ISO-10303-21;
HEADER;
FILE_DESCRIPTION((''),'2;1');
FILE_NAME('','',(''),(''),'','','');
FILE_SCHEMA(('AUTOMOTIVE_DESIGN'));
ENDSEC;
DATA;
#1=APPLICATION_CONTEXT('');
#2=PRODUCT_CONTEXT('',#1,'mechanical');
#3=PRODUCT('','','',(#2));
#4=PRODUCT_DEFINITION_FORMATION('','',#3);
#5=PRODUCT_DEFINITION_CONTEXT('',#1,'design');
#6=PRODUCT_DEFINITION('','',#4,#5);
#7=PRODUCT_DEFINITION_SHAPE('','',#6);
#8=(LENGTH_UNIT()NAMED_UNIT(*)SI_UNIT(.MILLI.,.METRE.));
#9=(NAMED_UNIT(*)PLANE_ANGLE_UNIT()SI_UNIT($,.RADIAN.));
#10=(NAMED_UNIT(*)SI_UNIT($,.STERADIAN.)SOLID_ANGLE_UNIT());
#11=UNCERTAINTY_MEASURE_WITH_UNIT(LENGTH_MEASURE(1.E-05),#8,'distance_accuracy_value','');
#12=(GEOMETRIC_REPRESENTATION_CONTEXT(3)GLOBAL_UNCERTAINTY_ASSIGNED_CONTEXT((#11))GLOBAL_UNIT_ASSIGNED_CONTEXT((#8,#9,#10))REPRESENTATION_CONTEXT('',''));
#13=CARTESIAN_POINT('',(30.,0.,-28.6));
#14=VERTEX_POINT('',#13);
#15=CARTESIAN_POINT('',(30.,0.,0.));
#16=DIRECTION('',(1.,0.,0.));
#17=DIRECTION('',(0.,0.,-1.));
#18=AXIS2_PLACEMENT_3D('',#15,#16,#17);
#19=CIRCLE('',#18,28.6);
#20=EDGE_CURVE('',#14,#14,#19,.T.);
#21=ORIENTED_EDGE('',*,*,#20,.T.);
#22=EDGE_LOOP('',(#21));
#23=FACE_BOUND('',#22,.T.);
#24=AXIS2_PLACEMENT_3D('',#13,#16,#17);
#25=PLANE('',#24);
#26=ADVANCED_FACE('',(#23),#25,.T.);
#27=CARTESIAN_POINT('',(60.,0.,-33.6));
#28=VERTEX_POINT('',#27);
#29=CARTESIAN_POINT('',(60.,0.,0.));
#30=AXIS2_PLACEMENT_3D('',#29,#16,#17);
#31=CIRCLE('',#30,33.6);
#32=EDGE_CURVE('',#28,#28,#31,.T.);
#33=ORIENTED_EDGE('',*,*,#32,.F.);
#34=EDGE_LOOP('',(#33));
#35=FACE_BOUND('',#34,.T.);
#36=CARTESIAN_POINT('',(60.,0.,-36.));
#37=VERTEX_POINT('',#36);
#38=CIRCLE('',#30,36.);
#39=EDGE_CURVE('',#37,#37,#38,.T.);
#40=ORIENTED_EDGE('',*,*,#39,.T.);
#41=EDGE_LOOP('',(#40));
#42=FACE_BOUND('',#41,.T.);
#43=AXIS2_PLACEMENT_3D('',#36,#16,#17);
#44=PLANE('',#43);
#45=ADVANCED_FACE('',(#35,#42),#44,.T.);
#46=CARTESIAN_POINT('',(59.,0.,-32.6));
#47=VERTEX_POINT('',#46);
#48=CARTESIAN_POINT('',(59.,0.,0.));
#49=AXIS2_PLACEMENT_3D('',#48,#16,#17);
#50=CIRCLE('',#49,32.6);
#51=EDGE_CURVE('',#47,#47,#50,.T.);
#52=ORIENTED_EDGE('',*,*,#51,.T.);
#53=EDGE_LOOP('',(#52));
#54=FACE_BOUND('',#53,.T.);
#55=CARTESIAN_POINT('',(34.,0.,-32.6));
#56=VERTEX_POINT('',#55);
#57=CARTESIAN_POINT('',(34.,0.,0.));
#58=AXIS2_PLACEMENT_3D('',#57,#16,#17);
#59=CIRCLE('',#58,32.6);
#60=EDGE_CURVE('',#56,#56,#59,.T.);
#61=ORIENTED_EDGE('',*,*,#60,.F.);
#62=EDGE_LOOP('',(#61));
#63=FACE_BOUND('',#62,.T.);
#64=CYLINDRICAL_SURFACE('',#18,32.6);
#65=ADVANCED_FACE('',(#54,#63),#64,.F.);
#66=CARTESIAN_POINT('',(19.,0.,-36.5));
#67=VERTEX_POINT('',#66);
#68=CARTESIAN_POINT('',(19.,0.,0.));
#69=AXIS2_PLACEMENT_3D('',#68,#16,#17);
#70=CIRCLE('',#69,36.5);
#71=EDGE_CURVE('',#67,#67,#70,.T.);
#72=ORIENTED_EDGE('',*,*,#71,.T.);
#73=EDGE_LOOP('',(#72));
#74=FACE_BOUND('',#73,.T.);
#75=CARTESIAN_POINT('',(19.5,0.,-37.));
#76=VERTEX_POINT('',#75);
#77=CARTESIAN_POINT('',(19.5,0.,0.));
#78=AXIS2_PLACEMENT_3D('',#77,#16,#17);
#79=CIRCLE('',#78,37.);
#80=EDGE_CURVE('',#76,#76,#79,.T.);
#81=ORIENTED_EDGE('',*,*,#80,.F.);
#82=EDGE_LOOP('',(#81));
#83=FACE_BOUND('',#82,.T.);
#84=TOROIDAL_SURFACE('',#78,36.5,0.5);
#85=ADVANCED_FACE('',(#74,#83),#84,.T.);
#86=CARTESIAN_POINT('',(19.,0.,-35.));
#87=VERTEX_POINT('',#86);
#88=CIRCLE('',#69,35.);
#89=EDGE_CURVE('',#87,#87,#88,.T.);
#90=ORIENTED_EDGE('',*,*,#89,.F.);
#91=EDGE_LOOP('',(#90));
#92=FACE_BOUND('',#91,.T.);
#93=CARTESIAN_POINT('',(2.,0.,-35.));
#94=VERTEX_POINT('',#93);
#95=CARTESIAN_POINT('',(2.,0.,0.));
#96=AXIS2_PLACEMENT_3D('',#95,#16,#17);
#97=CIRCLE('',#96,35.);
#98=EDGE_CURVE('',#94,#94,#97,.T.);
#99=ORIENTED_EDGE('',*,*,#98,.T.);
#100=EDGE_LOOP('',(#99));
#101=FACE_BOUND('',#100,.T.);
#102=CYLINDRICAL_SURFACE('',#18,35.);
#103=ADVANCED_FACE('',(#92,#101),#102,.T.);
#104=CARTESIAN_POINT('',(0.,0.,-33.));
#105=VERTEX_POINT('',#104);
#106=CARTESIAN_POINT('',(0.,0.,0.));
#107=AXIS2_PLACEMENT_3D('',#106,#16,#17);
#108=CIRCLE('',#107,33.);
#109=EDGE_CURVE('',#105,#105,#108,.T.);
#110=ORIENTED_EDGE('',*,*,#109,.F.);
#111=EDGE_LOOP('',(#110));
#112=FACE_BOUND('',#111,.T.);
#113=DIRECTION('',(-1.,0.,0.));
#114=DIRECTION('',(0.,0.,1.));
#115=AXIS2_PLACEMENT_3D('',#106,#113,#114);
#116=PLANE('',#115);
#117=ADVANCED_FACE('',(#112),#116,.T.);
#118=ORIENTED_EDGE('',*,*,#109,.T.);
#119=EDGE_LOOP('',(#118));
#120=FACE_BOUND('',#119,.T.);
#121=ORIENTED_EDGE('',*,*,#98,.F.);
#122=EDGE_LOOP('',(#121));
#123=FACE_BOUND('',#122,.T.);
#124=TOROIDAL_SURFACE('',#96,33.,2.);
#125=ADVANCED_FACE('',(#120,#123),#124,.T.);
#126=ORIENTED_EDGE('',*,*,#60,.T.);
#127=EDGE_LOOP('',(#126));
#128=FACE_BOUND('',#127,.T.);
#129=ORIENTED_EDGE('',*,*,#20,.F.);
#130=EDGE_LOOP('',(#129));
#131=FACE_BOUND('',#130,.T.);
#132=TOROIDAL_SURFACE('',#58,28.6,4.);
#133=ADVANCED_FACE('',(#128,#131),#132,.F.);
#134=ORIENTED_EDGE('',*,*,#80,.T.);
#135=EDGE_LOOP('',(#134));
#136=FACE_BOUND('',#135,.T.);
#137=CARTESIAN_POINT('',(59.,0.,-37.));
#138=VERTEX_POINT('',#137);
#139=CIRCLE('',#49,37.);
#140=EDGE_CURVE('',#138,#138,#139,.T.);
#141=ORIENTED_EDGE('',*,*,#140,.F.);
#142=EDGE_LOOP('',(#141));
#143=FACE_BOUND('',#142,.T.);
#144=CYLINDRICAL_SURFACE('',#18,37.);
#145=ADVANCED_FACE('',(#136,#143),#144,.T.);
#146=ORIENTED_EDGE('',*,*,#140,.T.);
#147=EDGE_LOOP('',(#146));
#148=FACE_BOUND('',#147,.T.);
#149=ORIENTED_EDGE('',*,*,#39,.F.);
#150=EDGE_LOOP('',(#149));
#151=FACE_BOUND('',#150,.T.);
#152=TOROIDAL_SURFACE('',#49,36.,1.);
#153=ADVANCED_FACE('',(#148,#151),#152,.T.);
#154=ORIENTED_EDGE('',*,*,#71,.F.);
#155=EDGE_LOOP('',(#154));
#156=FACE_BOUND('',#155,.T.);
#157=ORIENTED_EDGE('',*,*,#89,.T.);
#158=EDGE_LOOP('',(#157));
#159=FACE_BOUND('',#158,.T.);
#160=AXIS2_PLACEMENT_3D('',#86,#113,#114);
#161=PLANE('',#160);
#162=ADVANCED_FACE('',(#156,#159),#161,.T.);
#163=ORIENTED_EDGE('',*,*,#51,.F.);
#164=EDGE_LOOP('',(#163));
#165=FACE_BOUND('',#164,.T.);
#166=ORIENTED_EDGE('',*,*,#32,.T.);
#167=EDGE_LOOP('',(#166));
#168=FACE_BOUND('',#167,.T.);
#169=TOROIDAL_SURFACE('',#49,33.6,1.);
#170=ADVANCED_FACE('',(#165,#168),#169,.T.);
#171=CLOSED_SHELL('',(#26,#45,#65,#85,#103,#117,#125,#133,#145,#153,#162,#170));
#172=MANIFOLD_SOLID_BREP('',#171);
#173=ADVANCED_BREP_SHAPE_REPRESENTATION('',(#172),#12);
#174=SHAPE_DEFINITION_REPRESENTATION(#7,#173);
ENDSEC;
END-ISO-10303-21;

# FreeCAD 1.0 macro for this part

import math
import FreeCAD as App
import Part
import Sketcher

V = App.Vector
Q = App.Units.Quantity

doc = App.newDocument("Part")
params = doc.addObject("Spreadsheet::Sheet", "Params")
for row, (alias, value) in enumerate([
    ("sketch1_radius", "4 mm"),
    ("sketch1_radius2", "1 mm"),
    ("sketch1_radius3", "2 mm"),
    ("sketch1_radius4", "0.5 mm"),
    ("sketch1_width", "30 mm"),
    ("revolution_angle", "360 deg"),
], start=1):
    params.set(f"A{row}", alias)
    params.set(f"B{row}", "=" + value)
    params.setAlias(f"B{row}", alias)

body = doc.addObject("PartDesign::Body", "Body")

# Sketch on XZ plane
sketch1 = body.newObject("Sketcher::SketchObject", "Sketch")
sketch1.AttachmentSupport = (doc.getObject("XZ_Plane"), [""])
sketch1.MapMode = "FlatFace"
sketch1.addGeometry([
    Part.LineSegment(V(0, -33, 0), V(0, 0, 0)),  # 0
    Part.LineSegment(V(0, 0, 0), V(30, 0, 0)),  # 1
    Part.LineSegment(V(30, 0, 0), V(30, -28.6, 0)),  # 2
    Part.ArcOfCircle(Part.Circle(V(34, -28.6, 0), V(0, 0, 1), 4), math.radians(180), math.radians(270)),  # 3
    Part.LineSegment(V(34, -32.6, 0), V(59, -32.6, 0)),  # 4
    Part.ArcOfCircle(Part.Circle(V(59, -33.6, 0), V(0, 0, 1), 1), math.radians(0), math.radians(90)),  # 5
    Part.LineSegment(V(60, -33.6, 0), V(60, -36, 0)),  # 6
    Part.ArcOfCircle(Part.Circle(V(59, -36, 0), V(0, 0, 1), 1), math.radians(-90), math.radians(0)),  # 7
    Part.LineSegment(V(59, -37, 0), V(19.5, -37, 0)),  # 8
    Part.ArcOfCircle(Part.Circle(V(19.5, -36.5, 0), V(0, 0, 1), 0.5), math.radians(180), math.radians(270)),  # 9
    Part.LineSegment(V(19, -36.5, 0), V(19, -35, 0)),  # 10
    Part.LineSegment(V(19, -35, 0), V(2, -35, 0)),  # 11
    Part.ArcOfCircle(Part.Circle(V(2, -33, 0), V(0, 0, 1), 2), math.radians(-180), math.radians(-90)),  # 12
], False)
sketch1.addConstraint([
    Sketcher.Constraint("Coincident", 0, 2, 1, 1),
    Sketcher.Constraint("Coincident", 1, 2, 2, 1),
    Sketcher.Constraint("Tangent", 2, 2, 3, 1),
    Sketcher.Constraint("Tangent", 3, 2, 4, 1),
    Sketcher.Constraint("Tangent", 4, 2, 5, 2),
    Sketcher.Constraint("Tangent", 5, 1, 6, 1),
    Sketcher.Constraint("Tangent", 6, 2, 7, 2),
    Sketcher.Constraint("Tangent", 7, 1, 8, 1),
    Sketcher.Constraint("Tangent", 8, 2, 9, 2),
    Sketcher.Constraint("Tangent", 9, 1, 10, 1),
    Sketcher.Constraint("Coincident", 10, 2, 11, 1),
    Sketcher.Constraint("Tangent", 11, 2, 12, 2),
    Sketcher.Constraint("Tangent", 12, 1, 0, 1),
    Sketcher.Constraint("Vertical", 0),
    Sketcher.Constraint("Horizontal", 1),
    Sketcher.Constraint("Vertical", 2),
    Sketcher.Constraint("Horizontal", 4),
    Sketcher.Constraint("Vertical", 6),
    Sketcher.Constraint("Horizontal", 8),
    Sketcher.Constraint("Vertical", 10),
    Sketcher.Constraint("Horizontal", 11),
    Sketcher.Constraint("Coincident", 0, 2, -1, 1),
    Sketcher.Constraint("Equal", 5, 7),
    Sketcher.Constraint("Radius", 3, Q("4 mm")),
    Sketcher.Constraint("Radius", 5, Q("1 mm")),
    Sketcher.Constraint("Radius", 12, Q("2 mm")),
    Sketcher.Constraint("Radius", 9, Q("0.5 mm")),
    Sketcher.Constraint("DistanceX", 1, 1, 1, 2, Q("30 mm")),
    Sketcher.Constraint("DistanceX", 4, 1, 4, 2, Q("25 mm")),
    Sketcher.Constraint("DistanceX", 11, 2, 11, 1, Q("17 mm")),
    Sketcher.Constraint("DistanceY", 0, 1, 0, 2, Q("33 mm")),
    Sketcher.Constraint("DistanceY", 2, 2, 2, 1, Q("28.6 mm")),
    Sketcher.Constraint("DistanceY", 6, 2, 6, 1, Q("2.4 mm")),
])
sketch1.setExpression("Constraints[23]", "Params.sketch1_radius")
sketch1.setExpression("Constraints[24]", "Params.sketch1_radius2")
sketch1.setExpression("Constraints[25]", "Params.sketch1_radius3")
sketch1.setExpression("Constraints[26]", "Params.sketch1_radius4")
sketch1.setExpression("Constraints[27]", "Params.sketch1_width")
revolution = body.newObject("PartDesign::Revolution", "Revolution")
revolution.Profile = sketch1
revolution.ReferenceAxis = (sketch1, ["H_Axis"])
revolution.setExpression("Angle", "Params.revolution_angle")

doc.recompute()
